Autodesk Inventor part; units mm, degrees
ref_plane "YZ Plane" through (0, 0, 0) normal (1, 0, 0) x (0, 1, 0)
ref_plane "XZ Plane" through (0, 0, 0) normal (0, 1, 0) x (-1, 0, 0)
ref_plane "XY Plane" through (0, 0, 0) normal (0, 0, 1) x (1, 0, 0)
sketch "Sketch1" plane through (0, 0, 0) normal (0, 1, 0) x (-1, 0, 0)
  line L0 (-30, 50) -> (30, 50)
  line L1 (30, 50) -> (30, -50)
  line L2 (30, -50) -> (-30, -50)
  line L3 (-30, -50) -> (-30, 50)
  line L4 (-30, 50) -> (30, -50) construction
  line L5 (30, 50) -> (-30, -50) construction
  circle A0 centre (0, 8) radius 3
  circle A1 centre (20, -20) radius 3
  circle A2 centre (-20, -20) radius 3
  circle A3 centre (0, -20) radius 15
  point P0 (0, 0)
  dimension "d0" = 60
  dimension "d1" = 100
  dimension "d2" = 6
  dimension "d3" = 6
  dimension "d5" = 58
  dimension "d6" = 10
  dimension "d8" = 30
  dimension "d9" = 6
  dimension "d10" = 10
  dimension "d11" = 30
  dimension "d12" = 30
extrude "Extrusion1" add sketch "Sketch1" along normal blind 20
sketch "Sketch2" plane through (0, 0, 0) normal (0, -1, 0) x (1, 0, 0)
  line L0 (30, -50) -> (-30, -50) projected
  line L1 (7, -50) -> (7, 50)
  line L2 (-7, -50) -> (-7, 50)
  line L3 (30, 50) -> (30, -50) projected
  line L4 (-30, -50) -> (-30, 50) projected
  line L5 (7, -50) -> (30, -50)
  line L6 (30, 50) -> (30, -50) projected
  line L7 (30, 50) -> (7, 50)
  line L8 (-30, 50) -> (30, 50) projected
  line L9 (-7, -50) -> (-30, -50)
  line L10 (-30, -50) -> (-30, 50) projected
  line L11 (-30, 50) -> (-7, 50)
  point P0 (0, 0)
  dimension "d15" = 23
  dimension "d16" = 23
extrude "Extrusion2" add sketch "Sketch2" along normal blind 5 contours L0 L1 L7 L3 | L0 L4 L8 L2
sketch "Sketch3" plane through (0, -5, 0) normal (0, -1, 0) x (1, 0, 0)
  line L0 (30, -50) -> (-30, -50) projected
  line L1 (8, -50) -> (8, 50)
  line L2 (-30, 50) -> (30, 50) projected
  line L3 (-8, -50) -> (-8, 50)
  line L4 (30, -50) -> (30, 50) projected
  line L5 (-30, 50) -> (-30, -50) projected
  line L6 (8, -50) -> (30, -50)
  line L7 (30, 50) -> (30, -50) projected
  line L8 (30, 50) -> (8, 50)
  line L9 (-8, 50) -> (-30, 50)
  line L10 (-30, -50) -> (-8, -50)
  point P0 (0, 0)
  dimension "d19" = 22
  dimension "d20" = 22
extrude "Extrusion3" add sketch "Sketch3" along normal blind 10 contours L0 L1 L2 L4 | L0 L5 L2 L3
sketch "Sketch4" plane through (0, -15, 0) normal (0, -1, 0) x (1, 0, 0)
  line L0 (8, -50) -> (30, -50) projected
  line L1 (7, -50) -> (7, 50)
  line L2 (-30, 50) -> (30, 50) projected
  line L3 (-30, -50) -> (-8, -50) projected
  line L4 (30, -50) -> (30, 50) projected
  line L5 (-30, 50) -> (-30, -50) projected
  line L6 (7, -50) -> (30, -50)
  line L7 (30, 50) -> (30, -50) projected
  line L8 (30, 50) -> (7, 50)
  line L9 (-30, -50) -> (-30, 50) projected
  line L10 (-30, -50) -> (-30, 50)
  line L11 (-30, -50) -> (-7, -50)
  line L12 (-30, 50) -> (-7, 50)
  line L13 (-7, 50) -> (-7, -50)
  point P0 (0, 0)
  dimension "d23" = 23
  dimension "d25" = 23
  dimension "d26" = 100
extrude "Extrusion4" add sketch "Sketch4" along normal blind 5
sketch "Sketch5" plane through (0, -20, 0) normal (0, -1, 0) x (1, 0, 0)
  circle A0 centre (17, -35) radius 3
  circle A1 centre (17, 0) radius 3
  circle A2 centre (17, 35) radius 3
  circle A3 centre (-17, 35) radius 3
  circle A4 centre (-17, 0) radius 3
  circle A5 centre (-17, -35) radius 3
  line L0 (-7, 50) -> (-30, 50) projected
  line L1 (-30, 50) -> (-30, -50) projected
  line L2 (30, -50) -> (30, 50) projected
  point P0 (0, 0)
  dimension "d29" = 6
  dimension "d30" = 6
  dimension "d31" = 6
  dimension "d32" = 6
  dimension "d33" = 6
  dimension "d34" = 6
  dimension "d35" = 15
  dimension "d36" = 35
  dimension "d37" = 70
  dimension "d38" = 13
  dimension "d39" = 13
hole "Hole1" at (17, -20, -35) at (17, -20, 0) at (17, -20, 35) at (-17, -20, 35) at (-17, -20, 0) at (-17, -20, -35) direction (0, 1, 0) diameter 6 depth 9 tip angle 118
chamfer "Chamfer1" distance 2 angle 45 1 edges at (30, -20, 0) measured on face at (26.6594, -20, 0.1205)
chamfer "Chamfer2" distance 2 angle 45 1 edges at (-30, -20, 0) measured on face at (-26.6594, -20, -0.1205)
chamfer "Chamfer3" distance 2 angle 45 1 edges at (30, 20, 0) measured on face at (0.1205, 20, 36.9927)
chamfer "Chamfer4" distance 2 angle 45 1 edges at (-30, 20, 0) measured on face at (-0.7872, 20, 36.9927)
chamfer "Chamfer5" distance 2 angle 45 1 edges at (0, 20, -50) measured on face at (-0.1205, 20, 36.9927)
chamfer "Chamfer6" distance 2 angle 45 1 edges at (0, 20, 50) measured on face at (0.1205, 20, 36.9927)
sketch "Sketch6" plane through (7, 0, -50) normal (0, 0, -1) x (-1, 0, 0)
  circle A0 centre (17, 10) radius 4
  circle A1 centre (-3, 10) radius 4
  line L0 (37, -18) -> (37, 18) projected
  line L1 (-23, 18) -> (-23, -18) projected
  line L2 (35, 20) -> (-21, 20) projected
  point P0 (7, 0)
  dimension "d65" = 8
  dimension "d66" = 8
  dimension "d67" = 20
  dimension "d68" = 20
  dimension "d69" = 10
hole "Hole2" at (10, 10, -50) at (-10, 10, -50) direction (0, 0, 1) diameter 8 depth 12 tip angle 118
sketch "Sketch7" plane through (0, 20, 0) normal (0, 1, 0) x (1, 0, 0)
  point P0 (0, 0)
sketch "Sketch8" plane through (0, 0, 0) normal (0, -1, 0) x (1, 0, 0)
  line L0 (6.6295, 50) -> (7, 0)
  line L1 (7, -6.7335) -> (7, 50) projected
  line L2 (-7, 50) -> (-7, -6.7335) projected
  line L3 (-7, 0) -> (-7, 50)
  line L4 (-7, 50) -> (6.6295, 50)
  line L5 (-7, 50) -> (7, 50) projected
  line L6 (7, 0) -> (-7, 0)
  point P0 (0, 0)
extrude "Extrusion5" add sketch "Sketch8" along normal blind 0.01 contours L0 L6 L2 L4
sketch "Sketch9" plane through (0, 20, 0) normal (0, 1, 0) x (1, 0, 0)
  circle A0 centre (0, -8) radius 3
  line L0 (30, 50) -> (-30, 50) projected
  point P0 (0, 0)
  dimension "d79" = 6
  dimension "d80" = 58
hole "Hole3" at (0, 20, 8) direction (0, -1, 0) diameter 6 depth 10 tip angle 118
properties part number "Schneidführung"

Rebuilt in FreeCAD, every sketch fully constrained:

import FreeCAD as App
import Part
import Sketcher


def edges_at(feature, points):
    """Names of the edges that pass closest to the given points."""
    edges = feature.Shape.Edges
    near = lambda p: min(range(len(edges)), key=lambda i: edges[i].distToShape(Part.Vertex(*p))[0])
    return sorted({f"Edge{near(p) + 1}" for p in points})


def add_polygon(sketch, points):
    """Adds a closed chain of lines whose ends are joined by coincident constraints."""
    first, n = sketch.GeometryCount, len(points)
    for a, b in zip(points, points[1:] + points[:1]):
        sketch.addGeometry(Part.LineSegment(App.Vector(*a, 0), App.Vector(*b, 0)), False)
    for i in range(n):
        sketch.addConstraint(Sketcher.Constraint("Coincident", first + i, 2, first + (i + 1) % n, 1))

doc = App.newDocument("Part")
body = doc.addObject("PartDesign::Body", "Body")

# Sketch on XZ plane
sketch1 = body.newObject("Sketcher::SketchObject", "Sketch")
sketch1.AttachmentSupport = (doc.getObject("XZ_Plane"), [""])
sketch1.MapMode = "FlatFace"
add_polygon(sketch1, [(-30, 50), (30, 50), (30, -50), (-30, -50)])  # lines 0-3
sketch1.addGeometry(Part.Circle(App.Vector(20, -20, 0), App.Vector(0, 0, 1), 3), False)  # 4
sketch1.addGeometry(Part.Circle(App.Vector(0, -20, 0), App.Vector(0, 0, 1), 15), False)  # 5
sketch1.addGeometry(Part.Circle(App.Vector(-20, -20, 0), App.Vector(0, 0, 1), 3), False)  # 6
sketch1.addGeometry(Part.Circle(App.Vector(0, 8, 0), App.Vector(0, 0, 1), 3), False)  # 7
sketch1.addConstraint([
    Sketcher.Constraint("Horizontal", 0),
    Sketcher.Constraint("Vertical", 1),
    Sketcher.Constraint("Horizontal", 2),
    Sketcher.Constraint("Vertical", 3),
    Sketcher.Constraint("Equal", 4, 6),
    Sketcher.Constraint("Equal", 6, 7),
    Sketcher.Constraint("Symmetric", 0, 2, 2, 2, -1, 1),
    Sketcher.Constraint("Symmetric", 4, 3, 6, 3, -2),
    Sketcher.Constraint("PointOnObject", 5, 3, -2),
    Sketcher.Constraint("PointOnObject", 7, 3, -2),
    Sketcher.Constraint("Horizontal", 4, 3, 5, 3),
    Sketcher.Constraint("Diameter", 4, 6.0),
    Sketcher.Constraint("Diameter", 5, 30.0),
    Sketcher.Constraint("DistanceX", 0, 1, 0, 2, 60.0),
    Sketcher.Constraint("DistanceY", 1, 2, 1, 1, 100.0),
    Sketcher.Constraint("DistanceX", 4, 3, 0, 2, 10.0),
    Sketcher.Constraint("DistanceY", 1, 2, 4, 3, 30.0),
    Sketcher.Constraint("DistanceY", 1, 2, 7, 3, 58.0),
])
pad1 = body.newObject("PartDesign::Pad", "Pad")
pad1.Profile = sketch1
pad1.Length = 20
pad1.Reversed = True

# Sketch on XZ plane
sketch2 = body.newObject("Sketcher::SketchObject", "Sketch001")
sketch2.AttachmentSupport = (doc.getObject("XZ_Plane"), [""])
sketch2.MapMode = "FlatFace"
add_polygon(sketch2, [(7, -50), (30, -50), (30, 50), (7, 50)])  # lines 0-3
add_polygon(sketch2, [(-30, -50), (-7, -50), (-7, 50), (-30, 50)])  # lines 4-7
sketch2.addConstraint([
    Sketcher.Constraint("Horizontal", 0),
    Sketcher.Constraint("Vertical", 1),
    Sketcher.Constraint("Horizontal", 2),
    Sketcher.Constraint("Vertical", 3),
    Sketcher.Constraint("Horizontal", 4),
    Sketcher.Constraint("Vertical", 5),
    Sketcher.Constraint("Horizontal", 6),
    Sketcher.Constraint("Vertical", 7),
    Sketcher.Constraint("Symmetric", 2, 2, 4, 2, -1, 1),
    Sketcher.Constraint("Symmetric", 0, 2, 6, 2, -1, 1),
    Sketcher.Constraint("Horizontal", 3, 2, 4, 2),
    Sketcher.Constraint("DistanceX", 0, 1, 0, 2, 23.0),
    Sketcher.Constraint("DistanceY", 1, 1, 1, 2, 100.0),
    Sketcher.Constraint("DistanceX", -1, 1, 0, 2, 30.0),
])
pad2 = body.newObject("PartDesign::Pad", "Pad001")
pad2.Profile = sketch2
pad2.Length = 5

# Sketch on XZ plane
sketch3 = body.newObject("Sketcher::SketchObject", "Sketch002")
sketch3.AttachmentSupport = (doc.getObject("XZ_Plane"), [""])
sketch3.MapMode = "FlatFace"
sketch3.AttachmentOffset = App.Placement(App.Vector(0, 0, 5), App.Rotation())
add_polygon(sketch3, [(8, -50), (30, -50), (30, 50), (8, 50)])  # lines 0-3
add_polygon(sketch3, [(-30, -50), (-8, -50), (-8, 50), (-30, 50)])  # lines 4-7
sketch3.addConstraint([
    Sketcher.Constraint("Horizontal", 0),
    Sketcher.Constraint("Vertical", 1),
    Sketcher.Constraint("Horizontal", 2),
    Sketcher.Constraint("Vertical", 3),
    Sketcher.Constraint("Horizontal", 4),
    Sketcher.Constraint("Vertical", 5),
    Sketcher.Constraint("Horizontal", 6),
    Sketcher.Constraint("Vertical", 7),
    Sketcher.Constraint("Symmetric", 2, 2, 4, 2, -1, 1),
    Sketcher.Constraint("Symmetric", 0, 2, 6, 2, -1, 1),
    Sketcher.Constraint("Horizontal", 3, 2, 4, 2),
    Sketcher.Constraint("DistanceX", 0, 1, 0, 2, 22.0),
    Sketcher.Constraint("DistanceY", 1, 1, 1, 2, 100.0),
    Sketcher.Constraint("DistanceX", -1, 1, 0, 2, 30.0),
])
pad3 = body.newObject("PartDesign::Pad", "Pad002")
pad3.Profile = sketch3
pad3.Length = 10

# Sketch on XZ plane
sketch4 = body.newObject("Sketcher::SketchObject", "Sketch003")
sketch4.AttachmentSupport = (doc.getObject("XZ_Plane"), [""])
sketch4.MapMode = "FlatFace"
sketch4.AttachmentOffset = App.Placement(App.Vector(0, 0, 15), App.Rotation())
add_polygon(sketch4, [(7, -50), (30, -50), (30, 50), (7, 50)])  # lines 0-3
add_polygon(sketch4, [(-7, -50), (-7, 50), (-30, 50), (-30, -50)])  # lines 4-7
sketch4.addConstraint([
    Sketcher.Constraint("Horizontal", 0),
    Sketcher.Constraint("Vertical", 1),
    Sketcher.Constraint("Horizontal", 2),
    Sketcher.Constraint("Vertical", 3),
    Sketcher.Constraint("Vertical", 4),
    Sketcher.Constraint("Horizontal", 5),
    Sketcher.Constraint("Vertical", 6),
    Sketcher.Constraint("Horizontal", 7),
    Sketcher.Constraint("Symmetric", 3, 2, 4, 2, -1, 1),
    Sketcher.Constraint("Symmetric", 1, 2, 6, 2, -1, 1),
    Sketcher.Constraint("Horizontal", 2, 2, 4, 2),
    Sketcher.Constraint("DistanceX", 0, 1, 0, 2, 23.0),
    Sketcher.Constraint("DistanceY", 1, 1, 1, 2, 100.0),
    Sketcher.Constraint("DistanceX", -1, 1, 0, 2, 30.0),
])
pad4 = body.newObject("PartDesign::Pad", "Pad003")
pad4.Profile = sketch4
pad4.Length = 5

# Sketch on XZ plane
sketch5 = body.newObject("Sketcher::SketchObject", "Sketch004")
sketch5.AttachmentSupport = (doc.getObject("XZ_Plane"), [""])
sketch5.MapMode = "FlatFace"
sketch5.AttachmentOffset = App.Placement(App.Vector(0, 0, 20), App.Rotation())
sketch5.addGeometry([
    Part.Circle(App.Vector(17, -35, 0), App.Vector(0, 0, 1), 3),  # 0
    Part.Circle(App.Vector(17, 0, 0), App.Vector(0, 0, 1), 3),  # 1
    Part.Circle(App.Vector(17, 35, 0), App.Vector(0, 0, 1), 3),  # 2
    Part.Circle(App.Vector(-17, 35, 0), App.Vector(0, 0, 1), 3),  # 3
    Part.Circle(App.Vector(-17, 0, 0), App.Vector(0, 0, 1), 3),  # 4
    Part.Circle(App.Vector(-17, -35, 0), App.Vector(0, 0, 1), 3),  # 5
], False)
sketch5.addConstraint([
    Sketcher.Constraint("Equal", 0, 1),
    Sketcher.Constraint("Equal", 1, 2),
    Sketcher.Constraint("Equal", 2, 3),
    Sketcher.Constraint("Equal", 3, 4),
    Sketcher.Constraint("Equal", 4, 5),
    Sketcher.Constraint("Symmetric", 0, 3, 3, 3, -1, 1),
    Sketcher.Constraint("Symmetric", 1, 3, 4, 3, -1, 1),
    Sketcher.Constraint("Symmetric", 2, 3, 5, 3, -1, 1),
    Sketcher.Constraint("Symmetric", 2, 3, 3, 3, -2),
    Sketcher.Constraint("PointOnObject", 1, 3, -1),
    Sketcher.Constraint("Vertical", 0, 3, 1, 3),
    Sketcher.Constraint("Diameter", 0, 6.0),
    Sketcher.Constraint("DistanceX", -1, 1, 0, 3, 17.0),
    Sketcher.Constraint("DistanceY", 0, 3, -1, 1, 35.0),
])
doc.recompute()
hole = body.newObject("PartDesign::Hole", "Hole")
hole.Profile = sketch5
hole.ThreadType = "None"
hole.Diameter = 6
hole.DepthType = "Dimension"
hole.Depth = 9
hole.DrillPoint = "Angled"
hole.DrillPointAngle = 118
doc.recompute()

chamfer = body.newObject("PartDesign::Chamfer", "Chamfer")
chamfer.Base = (hole, edges_at(hole, [(30, -20, 0)]))
chamfer.Size = 2
doc.recompute()

chamfer2 = body.newObject("PartDesign::Chamfer", "Chamfer001")
chamfer2.Base = (chamfer, edges_at(chamfer, [(-30, -20, 0)]))
chamfer2.Size = 2
doc.recompute()

chamfer3 = body.newObject("PartDesign::Chamfer", "Chamfer002")
chamfer3.Base = (chamfer2, edges_at(chamfer2, [(30, 20, 0)]))
chamfer3.Size = 2
doc.recompute()

chamfer4 = body.newObject("PartDesign::Chamfer", "Chamfer003")
chamfer4.Base = (chamfer3, edges_at(chamfer3, [(-30, 20, 0)]))
chamfer4.Size = 2
doc.recompute()

chamfer5 = body.newObject("PartDesign::Chamfer", "Chamfer004")
chamfer5.Base = (chamfer4, edges_at(chamfer4, [(0, 20, -50)]))
chamfer5.Size = 2
doc.recompute()

chamfer6 = body.newObject("PartDesign::Chamfer", "Chamfer005")
chamfer6.Base = (chamfer5, edges_at(chamfer5, [(0, 20, 50)]))
chamfer6.Size = 2

# Sketch on XY plane
sketch6 = body.newObject("Sketcher::SketchObject", "Sketch005")
sketch6.AttachmentSupport = (doc.getObject("XY_Plane"), [""])
sketch6.MapMode = "FlatFace"
sketch6.AttachmentOffset = App.Placement(App.Vector(0, 0, -50), App.Rotation())
sketch6.addGeometry([
    Part.Circle(App.Vector(10, 10, 0), App.Vector(0, 0, 1), 4),
    Part.Circle(App.Vector(-10, 10, 0), App.Vector(0, 0, 1), 4),
], False)
sketch6.addConstraint([
    Sketcher.Constraint("Equal", 0, 1),
    Sketcher.Constraint("Symmetric", 0, 3, 1, 3, -2),
    Sketcher.Constraint("Diameter", 0, 8.0),
    Sketcher.Constraint("DistanceX", -1, 1, 0, 3, 10.0),
    Sketcher.Constraint("DistanceY", -1, 1, 0, 3, 10.0),
])
doc.recompute()
hole2 = body.newObject("PartDesign::Hole", "Hole001")
hole2.Profile = sketch6
hole2.ThreadType = "None"
hole2.Diameter = 8
hole2.DepthType = "Dimension"
hole2.Depth = 12
hole2.DrillPoint = "Angled"
hole2.DrillPointAngle = 118
hole2.Reversed = True

# Sketch on XZ plane
sketch7 = body.newObject("Sketcher::SketchObject", "Sketch006")
sketch7.AttachmentSupport = (doc.getObject("XZ_Plane"), [""])
sketch7.MapMode = "FlatFace"
add_polygon(sketch7, [(7, 0), (7, 50), (-7, 50), (-7, 0)])  # lines 0-3
sketch7.addConstraint([
    Sketcher.Constraint("Horizontal", 1),
    Sketcher.Constraint("Vertical", 2),
    Sketcher.Constraint("Horizontal", 3),
    Sketcher.Constraint("Symmetric", 2, 2, 3, 2, -1, 1),
    Sketcher.Constraint("DistanceX", 3, 1, 3, 2, 14.0),
    Sketcher.Constraint("DistanceY", 2, 2, 2, 1, 50.0),
    Sketcher.Constraint("DistanceX", 1, 2, 1, 1, 13.6295),
])
pad5 = body.newObject("PartDesign::Pad", "Pad004")
pad5.Profile = sketch7
pad5.Length = 0.01

# Sketch on XZ plane
sketch8 = body.newObject("Sketcher::SketchObject", "Sketch007")
sketch8.AttachmentSupport = (doc.getObject("XZ_Plane"), [""])
sketch8.MapMode = "FlatFace"
sketch8.AttachmentOffset = App.Placement(App.Vector(0, 0, -20), App.Rotation())
sketch8.addGeometry(Part.Circle(App.Vector(0, 8, 0), App.Vector(0, 0, 1), 3), False)
sketch8.addConstraint([
    Sketcher.Constraint("PointOnObject", 0, 3, -2),
    Sketcher.Constraint("Diameter", 0, 6.0),
    Sketcher.Constraint("DistanceY", -1, 1, 0, 3, 8.0),
])
doc.recompute()
hole3 = body.newObject("PartDesign::Hole", "Hole002")
hole3.Profile = sketch8
hole3.ThreadType = "None"
hole3.Diameter = 6
hole3.DepthType = "Dimension"
hole3.Depth = 10
hole3.DrillPoint = "Angled"
hole3.DrillPointAngle = 118
hole3.Reversed = True

doc.recompute()
